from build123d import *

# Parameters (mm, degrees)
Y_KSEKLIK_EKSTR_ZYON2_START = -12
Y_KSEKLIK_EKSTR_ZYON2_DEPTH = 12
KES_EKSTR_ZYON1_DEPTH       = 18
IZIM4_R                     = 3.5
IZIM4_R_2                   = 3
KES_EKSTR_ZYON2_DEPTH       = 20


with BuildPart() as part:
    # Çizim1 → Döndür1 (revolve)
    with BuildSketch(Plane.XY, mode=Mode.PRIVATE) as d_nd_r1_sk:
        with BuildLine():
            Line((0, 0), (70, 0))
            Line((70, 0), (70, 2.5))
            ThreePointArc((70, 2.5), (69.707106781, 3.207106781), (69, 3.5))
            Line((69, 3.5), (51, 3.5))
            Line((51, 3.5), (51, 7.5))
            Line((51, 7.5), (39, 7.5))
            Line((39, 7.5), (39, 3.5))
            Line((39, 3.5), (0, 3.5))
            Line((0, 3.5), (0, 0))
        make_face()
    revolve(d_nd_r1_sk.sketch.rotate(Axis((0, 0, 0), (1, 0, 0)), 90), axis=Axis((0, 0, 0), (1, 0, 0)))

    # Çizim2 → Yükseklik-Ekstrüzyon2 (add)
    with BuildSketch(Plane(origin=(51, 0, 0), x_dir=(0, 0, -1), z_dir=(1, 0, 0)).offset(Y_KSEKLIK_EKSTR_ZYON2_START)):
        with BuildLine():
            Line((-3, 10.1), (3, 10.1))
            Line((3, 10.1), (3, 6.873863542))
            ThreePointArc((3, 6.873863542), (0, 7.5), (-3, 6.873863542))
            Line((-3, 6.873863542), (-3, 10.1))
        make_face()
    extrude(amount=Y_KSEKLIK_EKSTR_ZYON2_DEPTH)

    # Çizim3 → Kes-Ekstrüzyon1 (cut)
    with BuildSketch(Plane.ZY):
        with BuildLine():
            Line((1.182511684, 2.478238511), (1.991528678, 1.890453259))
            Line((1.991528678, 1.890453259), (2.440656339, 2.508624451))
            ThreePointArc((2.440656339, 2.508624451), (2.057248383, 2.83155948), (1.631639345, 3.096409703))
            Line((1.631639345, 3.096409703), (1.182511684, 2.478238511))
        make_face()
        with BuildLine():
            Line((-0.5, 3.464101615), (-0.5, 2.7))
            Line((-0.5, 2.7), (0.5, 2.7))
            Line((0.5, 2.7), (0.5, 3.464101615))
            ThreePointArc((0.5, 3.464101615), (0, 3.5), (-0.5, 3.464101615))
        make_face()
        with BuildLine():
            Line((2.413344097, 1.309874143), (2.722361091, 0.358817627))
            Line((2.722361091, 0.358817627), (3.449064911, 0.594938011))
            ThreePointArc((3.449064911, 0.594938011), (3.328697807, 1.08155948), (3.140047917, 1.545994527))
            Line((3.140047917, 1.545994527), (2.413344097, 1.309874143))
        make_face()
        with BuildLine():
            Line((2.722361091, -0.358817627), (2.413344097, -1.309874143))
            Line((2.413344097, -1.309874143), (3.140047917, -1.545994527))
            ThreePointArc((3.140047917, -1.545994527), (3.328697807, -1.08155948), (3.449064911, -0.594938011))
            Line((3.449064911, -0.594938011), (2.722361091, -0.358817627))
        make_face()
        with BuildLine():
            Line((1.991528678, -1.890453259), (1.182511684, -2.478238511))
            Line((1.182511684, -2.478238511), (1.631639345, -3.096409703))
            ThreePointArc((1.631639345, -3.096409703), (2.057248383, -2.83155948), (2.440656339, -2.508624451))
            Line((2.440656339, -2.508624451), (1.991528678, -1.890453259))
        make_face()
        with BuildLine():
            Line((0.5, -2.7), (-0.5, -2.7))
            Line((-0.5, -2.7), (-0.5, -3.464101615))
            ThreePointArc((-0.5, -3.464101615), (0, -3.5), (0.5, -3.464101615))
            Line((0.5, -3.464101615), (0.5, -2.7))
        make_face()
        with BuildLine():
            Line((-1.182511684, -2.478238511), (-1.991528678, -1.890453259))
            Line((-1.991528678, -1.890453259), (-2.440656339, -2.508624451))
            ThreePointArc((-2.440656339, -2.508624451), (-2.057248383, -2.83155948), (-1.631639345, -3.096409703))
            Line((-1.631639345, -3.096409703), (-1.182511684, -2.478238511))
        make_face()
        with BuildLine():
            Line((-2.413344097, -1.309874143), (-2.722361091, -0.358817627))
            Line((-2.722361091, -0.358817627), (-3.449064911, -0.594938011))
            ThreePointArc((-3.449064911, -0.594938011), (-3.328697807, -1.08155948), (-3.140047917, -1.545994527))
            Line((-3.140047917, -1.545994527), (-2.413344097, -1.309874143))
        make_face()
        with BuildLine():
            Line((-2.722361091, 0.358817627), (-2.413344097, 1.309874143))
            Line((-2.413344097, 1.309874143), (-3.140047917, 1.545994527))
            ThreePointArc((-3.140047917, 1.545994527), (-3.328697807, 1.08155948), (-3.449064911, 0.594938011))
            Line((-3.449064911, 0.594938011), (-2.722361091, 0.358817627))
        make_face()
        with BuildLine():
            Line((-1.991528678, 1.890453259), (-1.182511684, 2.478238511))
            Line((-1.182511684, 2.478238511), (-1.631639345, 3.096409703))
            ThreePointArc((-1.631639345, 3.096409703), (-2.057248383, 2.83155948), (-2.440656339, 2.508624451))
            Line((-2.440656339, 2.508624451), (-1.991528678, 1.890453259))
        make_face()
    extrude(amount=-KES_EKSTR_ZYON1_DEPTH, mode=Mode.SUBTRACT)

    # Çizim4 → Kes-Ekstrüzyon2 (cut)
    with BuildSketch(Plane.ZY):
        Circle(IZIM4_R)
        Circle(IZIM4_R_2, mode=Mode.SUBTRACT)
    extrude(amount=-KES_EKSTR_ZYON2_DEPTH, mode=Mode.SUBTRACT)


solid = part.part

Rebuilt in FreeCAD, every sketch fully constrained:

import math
import FreeCAD as App
import Part
import Sketcher
Q = App.Units.Quantity

doc = App.newDocument("Part")
body = doc.addObject("PartDesign::Body", "Body")

# Sketch on XY plane
sketch1 = doc.addObject("Sketcher::SketchObject", "Sketch")
body.addObject(sketch1)
sketch1.AttachmentSupport = (doc.XY_Plane, [""])
sketch1.MapMode = "FlatFace"
sketch1.addGeometry(Part.LineSegment(App.Vector(0, 0, 0), App.Vector(70, 0, 0)), False)
sketch1.addGeometry(Part.LineSegment(App.Vector(70, 0, 0), App.Vector(70, 2.5, 0)), False)
sketch1.addGeometry(Part.ArcOfCircle(Part.Circle(App.Vector(69, 2.5, 0), App.Vector(0, 0, 1), 1), math.radians(0), math.radians(90)), False)
sketch1.addGeometry(Part.LineSegment(App.Vector(69, 3.5, 0), App.Vector(51, 3.5, 0)), False)
sketch1.addGeometry(Part.LineSegment(App.Vector(51, 3.5, 0), App.Vector(51, 7.5, 0)), False)
sketch1.addGeometry(Part.LineSegment(App.Vector(51, 7.5, 0), App.Vector(39, 7.5, 0)), False)
sketch1.addGeometry(Part.LineSegment(App.Vector(39, 7.5, 0), App.Vector(39, 3.5, 0)), False)
sketch1.addGeometry(Part.LineSegment(App.Vector(39, 3.5, 0), App.Vector(0, 3.5, 0)), False)
sketch1.addGeometry(Part.LineSegment(App.Vector(0, 3.5, 0), App.Vector(0, 0, 0)), False)
sketch1.addConstraint(Sketcher.Constraint("Coincident", 0, 2, 1, 1))
sketch1.addConstraint(Sketcher.Constraint("Tangent", 1, 2, 2, 1))
sketch1.addConstraint(Sketcher.Constraint("Tangent", 2, 2, 3, 1))
sketch1.addConstraint(Sketcher.Constraint("Coincident", 3, 2, 4, 1))
sketch1.addConstraint(Sketcher.Constraint("Coincident", 4, 2, 5, 1))
sketch1.addConstraint(Sketcher.Constraint("Coincident", 5, 2, 6, 1))
sketch1.addConstraint(Sketcher.Constraint("Coincident", 6, 2, 7, 1))
sketch1.addConstraint(Sketcher.Constraint("Coincident", 7, 2, 8, 1))
sketch1.addConstraint(Sketcher.Constraint("Coincident", 8, 2, 0, 1))
sketch1.addConstraint(Sketcher.Constraint("Horizontal", 0))
sketch1.addConstraint(Sketcher.Constraint("Vertical", 1))
sketch1.addConstraint(Sketcher.Constraint("Horizontal", 3))
sketch1.addConstraint(Sketcher.Constraint("Vertical", 4))
sketch1.addConstraint(Sketcher.Constraint("Horizontal", 5))
sketch1.addConstraint(Sketcher.Constraint("Vertical", 6))
sketch1.addConstraint(Sketcher.Constraint("Horizontal", 7))
sketch1.addConstraint(Sketcher.Constraint("Vertical", 8))
sketch1.addConstraint(Sketcher.Constraint("Coincident", 8, 2, -1, 1))
sketch1.addConstraint(Sketcher.Constraint("Horizontal", 3, 2, 6, 2))
sketch1.addConstraint(Sketcher.Constraint("Radius", 2, 1.0))
sketch1.addConstraint(Sketcher.Constraint("DistanceX", 0, 1, 0, 2, 70.0))
sketch1.addConstraint(Sketcher.Constraint("DistanceX", 3, 2, 3, 1, 18.0))
sketch1.addConstraint(Sketcher.Constraint("DistanceX", 5, 2, 5, 1, 12.0))
sketch1.addConstraint(Sketcher.Constraint("DistanceY", 4, 1, 4, 2, 4.0))
sketch1.addConstraint(Sketcher.Constraint("DistanceY", 1, 1, 1, 2, 2.5))
revolution = doc.addObject("PartDesign::Revolution", "Revolution")
body.addObject(revolution)
revolution.Profile = sketch1
revolution.ReferenceAxis = (sketch1, ["H_Axis"])
revolution.Angle = 360

# Sketch on YZ plane
sketch2 = doc.addObject("Sketcher::SketchObject", "Sketch001")
body.addObject(sketch2)
sketch2.AttachmentSupport = (doc.YZ_Plane, [""])
sketch2.MapMode = "FlatFace"
sketch2.AttachmentOffset = App.Placement(App.Vector(0, 0, 39), App.Rotation())
sketch2.addGeometry(Part.LineSegment(App.Vector(10.1, -3, 0), App.Vector(10.1, 3, 0)), False)
sketch2.addGeometry(Part.LineSegment(App.Vector(10.1, 3, 0), App.Vector(6.873864, 3, 0)), False)
sketch2.addGeometry(Part.ArcOfCircle(Part.Circle(App.Vector(0, 0, 0), App.Vector(0, 0, 1), 7.5), math.radians(-23.578178), math.radians(23.578178)), False)
sketch2.addGeometry(Part.LineSegment(App.Vector(6.873864, -3, 0), App.Vector(10.1, -3, 0)), False)
sketch2.addConstraint(Sketcher.Constraint("Coincident", 0, 2, 1, 1))
sketch2.addConstraint(Sketcher.Constraint("Coincident", 1, 2, 2, 2))
sketch2.addConstraint(Sketcher.Constraint("Coincident", 2, 1, 3, 1))
sketch2.addConstraint(Sketcher.Constraint("Coincident", 3, 2, 0, 1))
sketch2.addConstraint(Sketcher.Constraint("Vertical", 0))
sketch2.addConstraint(Sketcher.Constraint("Horizontal", 1))
sketch2.addConstraint(Sketcher.Constraint("Horizontal", 3))
sketch2.addConstraint(Sketcher.Constraint("Coincident", 2, 3, -1, 1))
sketch2.addConstraint(Sketcher.Constraint("Vertical", 1, 2, 2, 1))
sketch2.addConstraint(Sketcher.Constraint("Radius", 2, 7.5))
sketch2.addConstraint(Sketcher.Constraint("DistanceY", 0, 1, 0, 2, 6.0))
sketch2.addConstraint(Sketcher.Constraint("DistanceX", -1, 1, 0, 2, 10.1))
pad1 = doc.addObject("PartDesign::Pad", "Pad")
body.addObject(pad1)
pad1.Profile = sketch2
pad1.Length = 12

# Sketch on YZ plane
sketch3 = doc.addObject("Sketcher::SketchObject", "Sketch002")
body.addObject(sketch3)
sketch3.AttachmentSupport = (doc.YZ_Plane, [""])
sketch3.MapMode = "FlatFace"
sketch3.addGeometry(Part.LineSegment(App.Vector(2.478239, 1.182512, 0), App.Vector(1.890453, 1.991529, 0)), False)
sketch3.addGeometry(Part.LineSegment(App.Vector(1.890453, 1.991529, 0), App.Vector(2.508624, 2.440656, 0)), False)
sketch3.addGeometry(Part.ArcOfCircle(Part.Circle(App.Vector(0, 0, 0), App.Vector(0, 0, 1), 3.5), math.radians(27.786789), math.radians(44.213211)), False)
sketch3.addGeometry(Part.LineSegment(App.Vector(3.09641, 1.631639, 0), App.Vector(2.478239, 1.182512, 0)), False)
sketch3.addGeometry(Part.LineSegment(App.Vector(3.464102, -0.5, 0), App.Vector(2.7, -0.5, 0)), False)
sketch3.addGeometry(Part.LineSegment(App.Vector(2.7, -0.5, 0), App.Vector(2.7, 0.5, 0)), False)
sketch3.addGeometry(Part.LineSegment(App.Vector(2.7, 0.5, 0), App.Vector(3.464102, 0.5, 0)), False)
sketch3.addGeometry(Part.ArcOfCircle(Part.Circle(App.Vector(0, 0, 0), App.Vector(0, 0, 1), 3.5), math.radians(-8.213211), math.radians(8.213211)), False)
sketch3.addGeometry(Part.LineSegment(App.Vector(1.309874, 2.413344, 0), App.Vector(0.358818, 2.722361, 0)), False)
sketch3.addGeometry(Part.LineSegment(App.Vector(0.358818, 2.722361, 0), App.Vector(0.594938, 3.449065, 0)), False)
sketch3.addGeometry(Part.ArcOfCircle(Part.Circle(App.Vector(0, 0, 0), App.Vector(0, 0, 1), 3.5), math.radians(63.786789), math.radians(80.213211)), False)
sketch3.addGeometry(Part.LineSegment(App.Vector(1.545995, 3.140048, 0), App.Vector(1.309874, 2.413344, 0)), False)
sketch3.addGeometry(Part.LineSegment(App.Vector(-0.358818, 2.722361, 0), App.Vector(-1.309874, 2.413344, 0)), False)
sketch3.addGeometry(Part.LineSegment(App.Vector(-1.309874, 2.413344, 0), App.Vector(-1.545995, 3.140048, 0)), False)
sketch3.addGeometry(Part.ArcOfCircle(Part.Circle(App.Vector(0, 0, 0), App.Vector(0, 0, 1), 3.5), math.radians(99.786789), math.radians(116.213211)), False)
sketch3.addGeometry(Part.LineSegment(App.Vector(-0.594938, 3.449065, 0), App.Vector(-0.358818, 2.722361, 0)), False)
sketch3.addGeometry(Part.LineSegment(App.Vector(-1.890453, 1.991529, 0), App.Vector(-2.478239, 1.182512, 0)), False)
sketch3.addGeometry(Part.LineSegment(App.Vector(-2.478239, 1.182512, 0), App.Vector(-3.09641, 1.631639, 0)), False)
sketch3.addGeometry(Part.ArcOfCircle(Part.Circle(App.Vector(0, 0, 0), App.Vector(0, 0, 1), 3.5), math.radians(135.786789), math.radians(152.213211)), False)
sketch3.addGeometry(Part.LineSegment(App.Vector(-2.508624, 2.440656, 0), App.Vector(-1.890453, 1.991529, 0)), False)
sketch3.addGeometry(Part.LineSegment(App.Vector(-2.7, 0.5, 0), App.Vector(-2.7, -0.5, 0)), False)
sketch3.addGeometry(Part.LineSegment(App.Vector(-2.7, -0.5, 0), App.Vector(-3.464102, -0.5, 0)), False)
sketch3.addGeometry(Part.ArcOfCircle(Part.Circle(App.Vector(0, 0, 0), App.Vector(0, 0, 1), 3.5), math.radians(171.786789), math.radians(188.213211)), False)
sketch3.addGeometry(Part.LineSegment(App.Vector(-3.464102, 0.5, 0), App.Vector(-2.7, 0.5, 0)), False)
sketch3.addGeometry(Part.LineSegment(App.Vector(-2.478239, -1.182512, 0), App.Vector(-1.890453, -1.991529, 0)), False)
sketch3.addGeometry(Part.LineSegment(App.Vector(-1.890453, -1.991529, 0), App.Vector(-2.508624, -2.440656, 0)), False)
sketch3.addGeometry(Part.ArcOfCircle(Part.Circle(App.Vector(0, 0, 0), App.Vector(0, 0, 1), 3.5), math.radians(-152.213211), math.radians(-135.786789)), False)
sketch3.addGeometry(Part.LineSegment(App.Vector(-3.09641, -1.631639, 0), App.Vector(-2.478239, -1.182512, 0)), False)
sketch3.addGeometry(Part.LineSegment(App.Vector(-1.309874, -2.413344, 0), App.Vector(-0.358818, -2.722361, 0)), False)
sketch3.addGeometry(Part.LineSegment(App.Vector(-0.358818, -2.722361, 0), App.Vector(-0.594938, -3.449065, 0)), False)
sketch3.addGeometry(Part.ArcOfCircle(Part.Circle(App.Vector(0, 0, 0), App.Vector(0, 0, 1), 3.5), math.radians(-116.213211), math.radians(-99.786789)), False)
sketch3.addGeometry(Part.LineSegment(App.Vector(-1.545995, -3.140048, 0), App.Vector(-1.309874, -2.413344, 0)), False)
sketch3.addGeometry(Part.LineSegment(App.Vector(0.358818, -2.722361, 0), App.Vector(1.309874, -2.413344, 0)), False)
sketch3.addGeometry(Part.LineSegment(App.Vector(1.309874, -2.413344, 0), App.Vector(1.545995, -3.140048, 0)), False)
sketch3.addGeometry(Part.ArcOfCircle(Part.Circle(App.Vector(0, 0, 0), App.Vector(0, 0, 1), 3.5), math.radians(-80.213211), math.radians(-63.786789)), False)
sketch3.addGeometry(Part.LineSegment(App.Vector(0.594938, -3.449065, 0), App.Vector(0.358818, -2.722361, 0)), False)
sketch3.addGeometry(Part.LineSegment(App.Vector(1.890453, -1.991529, 0), App.Vector(2.478239, -1.182512, 0)), False)
sketch3.addGeometry(Part.LineSegment(App.Vector(2.478239, -1.182512, 0), App.Vector(3.09641, -1.631639, 0)), False)
sketch3.addGeometry(Part.ArcOfCircle(Part.Circle(App.Vector(0, 0, 0), App.Vector(0, 0, 1), 3.5), math.radians(-44.213211), math.radians(-27.786789)), False)
sketch3.addGeometry(Part.LineSegment(App.Vector(2.508624, -2.440656, 0), App.Vector(1.890453, -1.991529, 0)), False)
sketch3.addConstraint(Sketcher.Constraint("Coincident", 0, 2, 1, 1))
sketch3.addConstraint(Sketcher.Constraint("Coincident", 1, 2, 2, 2))
sketch3.addConstraint(Sketcher.Constraint("Coincident", 2, 1, 3, 1))
sketch3.addConstraint(Sketcher.Constraint("Coincident", 3, 2, 0, 1))
sketch3.addConstraint(Sketcher.Constraint("Coincident", 4, 2, 5, 1))
sketch3.addConstraint(Sketcher.Constraint("Coincident", 5, 2, 6, 1))
sketch3.addConstraint(Sketcher.Constraint("Coincident", 6, 2, 7, 2))
sketch3.addConstraint(Sketcher.Constraint("Coincident", 7, 1, 4, 1))
sketch3.addConstraint(Sketcher.Constraint("Coincident", 8, 2, 9, 1))
sketch3.addConstraint(Sketcher.Constraint("Coincident", 9, 2, 10, 2))
sketch3.addConstraint(Sketcher.Constraint("Coincident", 10, 1, 11, 1))
sketch3.addConstraint(Sketcher.Constraint("Coincident", 11, 2, 8, 1))
sketch3.addConstraint(Sketcher.Constraint("Coincident", 12, 2, 13, 1))
sketch3.addConstraint(Sketcher.Constraint("Coincident", 13, 2, 14, 2))
sketch3.addConstraint(Sketcher.Constraint("Coincident", 14, 1, 15, 1))
sketch3.addConstraint(Sketcher.Constraint("Coincident", 15, 2, 12, 1))
sketch3.addConstraint(Sketcher.Constraint("Coincident", 16, 2, 17, 1))
sketch3.addConstraint(Sketcher.Constraint("Coincident", 17, 2, 18, 2))
sketch3.addConstraint(Sketcher.Constraint("Coincident", 18, 1, 19, 1))
sketch3.addConstraint(Sketcher.Constraint("Coincident", 19, 2, 16, 1))
sketch3.addConstraint(Sketcher.Constraint("Coincident", 20, 2, 21, 1))
sketch3.addConstraint(Sketcher.Constraint("Coincident", 21, 2, 22, 2))
sketch3.addConstraint(Sketcher.Constraint("Coincident", 22, 1, 23, 1))
sketch3.addConstraint(Sketcher.Constraint("Coincident", 23, 2, 20, 1))
sketch3.addConstraint(Sketcher.Constraint("Coincident", 24, 2, 25, 1))
sketch3.addConstraint(Sketcher.Constraint("Coincident", 25, 2, 26, 2))
sketch3.addConstraint(Sketcher.Constraint("Coincident", 26, 1, 27, 1))
sketch3.addConstraint(Sketcher.Constraint("Coincident", 27, 2, 24, 1))
sketch3.addConstraint(Sketcher.Constraint("Coincident", 28, 2, 29, 1))
sketch3.addConstraint(Sketcher.Constraint("Coincident", 29, 2, 30, 2))
sketch3.addConstraint(Sketcher.Constraint("Coincident", 30, 1, 31, 1))
sketch3.addConstraint(Sketcher.Constraint("Coincident", 31, 2, 28, 1))
sketch3.addConstraint(Sketcher.Constraint("Coincident", 32, 2, 33, 1))
sketch3.addConstraint(Sketcher.Constraint("Coincident", 33, 2, 34, 2))
sketch3.addConstraint(Sketcher.Constraint("Coincident", 34, 1, 35, 1))
sketch3.addConstraint(Sketcher.Constraint("Coincident", 35, 2, 32, 1))
sketch3.addConstraint(Sketcher.Constraint("Coincident", 36, 2, 37, 1))
sketch3.addConstraint(Sketcher.Constraint("Coincident", 37, 2, 38, 2))
sketch3.addConstraint(Sketcher.Constraint("Coincident", 38, 1, 39, 1))
sketch3.addConstraint(Sketcher.Constraint("Coincident", 39, 2, 36, 1))
sketch3.addConstraint(Sketcher.Constraint("Horizontal", 4))
sketch3.addConstraint(Sketcher.Constraint("Vertical", 5))
sketch3.addConstraint(Sketcher.Constraint("Horizontal", 6))
sketch3.addConstraint(Sketcher.Constraint("Vertical", 20))
sketch3.addConstraint(Sketcher.Constraint("Horizontal", 21))
sketch3.addConstraint(Sketcher.Constraint("Horizontal", 23))
sketch3.addConstraint(Sketcher.Constraint("Coincident", 2, 3, -1, 1))
sketch3.addConstraint(Sketcher.Constraint("Coincident", 7, 3, -1, 1))
sketch3.addConstraint(Sketcher.Constraint("Coincident", 10, 3, -1, 1))
sketch3.addConstraint(Sketcher.Constraint("Coincident", 14, 3, -1, 1))
sketch3.addConstraint(Sketcher.Constraint("Coincident", 18, 3, -1, 1))
sketch3.addConstraint(Sketcher.Constraint("Coincident", 22, 3, -1, 1))
sketch3.addConstraint(Sketcher.Constraint("Coincident", 26, 3, -1, 1))
sketch3.addConstraint(Sketcher.Constraint("Coincident", 30, 3, -1, 1))
sketch3.addConstraint(Sketcher.Constraint("Coincident", 34, 3, -1, 1))
sketch3.addConstraint(Sketcher.Constraint("Coincident", 38, 3, -1, 1))
sketch3.addConstraint(Sketcher.Constraint("Equal", 2, 7))
sketch3.addConstraint(Sketcher.Constraint("Equal", 7, 10))
sketch3.addConstraint(Sketcher.Constraint("Equal", 10, 14))
sketch3.addConstraint(Sketcher.Constraint("Equal", 14, 18))
sketch3.addConstraint(Sketcher.Constraint("Equal", 18, 22))
sketch3.addConstraint(Sketcher.Constraint("Equal", 22, 26))
sketch3.addConstraint(Sketcher.Constraint("Equal", 26, 30))
sketch3.addConstraint(Sketcher.Constraint("Equal", 30, 34))
sketch3.addConstraint(Sketcher.Constraint("Equal", 34, 38))
sketch3.addConstraint(Sketcher.Constraint("Symmetric", 5, 2, 20, 2, -1, 1))
sketch3.addConstraint(Sketcher.Constraint("Symmetric", 0, 2, 24, 2, -1, 1))
sketch3.addConstraint(Sketcher.Constraint("Symmetric", 3, 2, 27, 2, -1, 1))
sketch3.addConstraint(Sketcher.Constraint("Symmetric", 8, 2, 28, 2, -1, 1))
sketch3.addConstraint(Sketcher.Constraint("Symmetric", 11, 2, 31, 2, -1, 1))
sketch3.addConstraint(Sketcher.Constraint("Symmetric", 12, 2, 32, 2, -1, 1))
sketch3.addConstraint(Sketcher.Constraint("Symmetric", 15, 2, 35, 2, -1, 1))
sketch3.addConstraint(Sketcher.Constraint("Symmetric", 16, 2, 36, 2, -1, 1))
sketch3.addConstraint(Sketcher.Constraint("Symmetric", 19, 2, 39, 2, -1, 1))
sketch3.addConstraint(Sketcher.Constraint("Symmetric", 11, 2, 12, 2, -2))
sketch3.addConstraint(Sketcher.Constraint("Symmetric", 8, 2, 15, 2, -2))
sketch3.addConstraint(Sketcher.Constraint("Symmetric", 3, 2, 16, 2, -2))
sketch3.addConstraint(Sketcher.Constraint("Symmetric", 0, 2, 19, 2, -2))
sketch3.addConstraint(Sketcher.Constraint("Perpendicular", 0, 1))
sketch3.addConstraint(Sketcher.Constraint("Parallel", 1, 3))
sketch3.addConstraint(Sketcher.Constraint("Perpendicular", 8, 9))
sketch3.addConstraint(Sketcher.Constraint("Parallel", 9, 11))
sketch3.addConstraint(Sketcher.Constraint("Perpendicular", 12, 13))
sketch3.addConstraint(Sketcher.Constraint("Parallel", 13, 15))
sketch3.addConstraint(Sketcher.Constraint("Perpendicular", 16, 17))
sketch3.addConstraint(Sketcher.Constraint("Parallel", 17, 19))
sketch3.addConstraint(Sketcher.Constraint("Perpendicular", 24, 25))
sketch3.addConstraint(Sketcher.Constraint("Parallel", 25, 27))
sketch3.addConstraint(Sketcher.Constraint("Perpendicular", 28, 29))
sketch3.addConstraint(Sketcher.Constraint("Parallel", 29, 31))
sketch3.addConstraint(Sketcher.Constraint("Perpendicular", 32, 33))
sketch3.addConstraint(Sketcher.Constraint("Parallel", 33, 35))
sketch3.addConstraint(Sketcher.Constraint("Perpendicular", 36, 37))
sketch3.addConstraint(Sketcher.Constraint("Parallel", 37, 39))
sketch3.addConstraint(Sketcher.Constraint("Horizontal", 7, 1, 20, 2))
sketch3.addConstraint(Sketcher.Constraint("Horizontal", 6, 2, 22, 1))
sketch3.addConstraint(Sketcher.Constraint("Equal", 1, 3))
sketch3.addConstraint(Sketcher.Constraint("Equal", 0, 8))
sketch3.addConstraint(Sketcher.Constraint("Equal", 3, 9))
sketch3.addConstraint(Sketcher.Constraint("Equal", 9, 11))
sketch3.addConstraint(Sketcher.Constraint("Radius", 2, 3.5))
sketch3.addConstraint(Sketcher.Constraint("DistanceY", 5, 1, 5, 2, 1.0))
sketch3.addConstraint(Sketcher.Constraint("Angle", 0, Q("126 deg")))
sketch3.addConstraint(Sketcher.Constraint("Angle", 8, Q("162 deg")))
sketch3.addConstraint(Sketcher.Constraint("Distance", 0, 1.0))
sketch3.addConstraint(Sketcher.Constraint("DistanceX", -1, 1, 4, 2, 2.7))
sketch3.addConstraint(Sketcher.Constraint("Distance", 1, 0.764102))
pocket1 = doc.addObject("PartDesign::Pocket", "Pocket")
body.addObject(pocket1)
pocket1.Profile = sketch3
pocket1.Length = 18
pocket1.Reversed = True

# Sketch on YZ plane
sketch4 = doc.addObject("Sketcher::SketchObject", "Sketch003")
body.addObject(sketch4)
sketch4.AttachmentSupport = (doc.YZ_Plane, [""])
sketch4.MapMode = "FlatFace"
sketch4.addGeometry(Part.Circle(App.Vector(0, 0, 0), App.Vector(0, 0, 1), 3.5), False)
sketch4.addGeometry(Part.Circle(App.Vector(0, 0, 0), App.Vector(0, 0, 1), 3), False)
sketch4.addConstraint(Sketcher.Constraint("Coincident", 0, 3, -1, 1))
sketch4.addConstraint(Sketcher.Constraint("Coincident", 1, 3, -1, 1))
sketch4.addConstraint(Sketcher.Constraint("Diameter", 0, 7.0))
sketch4.addConstraint(Sketcher.Constraint("Diameter", 1, 6.0))
pocket2 = doc.addObject("PartDesign::Pocket", "Pocket001")
body.addObject(pocket2)
pocket2.Profile = sketch4
pocket2.Length = 20
pocket2.Reversed = True

doc.recompute()
